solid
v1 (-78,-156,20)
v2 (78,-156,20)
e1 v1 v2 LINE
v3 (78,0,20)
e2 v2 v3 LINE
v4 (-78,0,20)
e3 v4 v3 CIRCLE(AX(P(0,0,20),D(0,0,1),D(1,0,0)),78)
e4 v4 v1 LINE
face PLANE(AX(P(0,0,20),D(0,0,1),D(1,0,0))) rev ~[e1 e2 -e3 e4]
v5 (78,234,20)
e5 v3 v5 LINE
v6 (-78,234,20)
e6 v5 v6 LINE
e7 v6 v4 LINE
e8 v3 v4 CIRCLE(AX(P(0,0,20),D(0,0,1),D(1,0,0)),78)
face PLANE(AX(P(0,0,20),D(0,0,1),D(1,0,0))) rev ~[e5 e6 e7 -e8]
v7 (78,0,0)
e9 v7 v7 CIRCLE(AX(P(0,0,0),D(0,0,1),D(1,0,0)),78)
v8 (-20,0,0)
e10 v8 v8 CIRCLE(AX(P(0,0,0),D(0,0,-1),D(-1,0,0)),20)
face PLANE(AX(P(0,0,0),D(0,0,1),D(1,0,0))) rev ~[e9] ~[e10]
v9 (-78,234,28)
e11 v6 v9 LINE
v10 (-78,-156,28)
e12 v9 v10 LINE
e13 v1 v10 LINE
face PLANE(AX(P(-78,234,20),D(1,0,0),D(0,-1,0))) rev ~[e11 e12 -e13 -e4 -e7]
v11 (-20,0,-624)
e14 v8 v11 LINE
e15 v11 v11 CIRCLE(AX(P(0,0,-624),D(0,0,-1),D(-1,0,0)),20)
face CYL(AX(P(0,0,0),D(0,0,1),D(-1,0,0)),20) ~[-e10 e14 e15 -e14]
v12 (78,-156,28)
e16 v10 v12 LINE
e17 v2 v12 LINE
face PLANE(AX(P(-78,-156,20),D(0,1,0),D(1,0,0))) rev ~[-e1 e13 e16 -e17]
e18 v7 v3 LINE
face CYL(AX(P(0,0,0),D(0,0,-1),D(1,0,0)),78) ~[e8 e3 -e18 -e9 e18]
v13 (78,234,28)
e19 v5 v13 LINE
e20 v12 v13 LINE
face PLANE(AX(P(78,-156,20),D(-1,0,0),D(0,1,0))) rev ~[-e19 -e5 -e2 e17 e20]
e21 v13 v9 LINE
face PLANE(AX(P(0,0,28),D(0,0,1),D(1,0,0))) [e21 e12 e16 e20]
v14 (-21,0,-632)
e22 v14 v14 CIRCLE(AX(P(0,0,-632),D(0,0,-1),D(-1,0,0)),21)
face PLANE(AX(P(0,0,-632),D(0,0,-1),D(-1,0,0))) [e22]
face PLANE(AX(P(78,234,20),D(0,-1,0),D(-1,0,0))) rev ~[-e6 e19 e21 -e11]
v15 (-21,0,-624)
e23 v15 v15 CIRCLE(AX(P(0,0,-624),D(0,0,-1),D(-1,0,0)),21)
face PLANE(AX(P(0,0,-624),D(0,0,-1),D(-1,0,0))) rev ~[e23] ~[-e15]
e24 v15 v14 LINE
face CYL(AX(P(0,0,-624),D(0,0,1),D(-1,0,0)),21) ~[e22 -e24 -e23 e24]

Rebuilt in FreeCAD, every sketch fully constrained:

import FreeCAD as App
import Part
import Sketcher

V = App.Vector
Q = App.Units.Quantity

doc = App.newDocument("Part")
params = doc.addObject("Spreadsheet::Sheet", "Params")
for row, (alias, value) in enumerate([
    ("sketch1_diameter", "156 mm"),
    ("pad1_length", "20 mm"),
    ("sketch2_diameter", "40 mm"),
    ("pad2_length", "624 mm"),
    ("sketch3_width", "156 mm"),
    ("sketch3_height", "390 mm"),
    ("pad3_length", "8 mm"),
    ("sketch4_diameter", "42 mm"),
    ("pad4_length", "8 mm"),
], start=1):
    params.set(f"A{row}", alias)
    params.set(f"B{row}", "=" + value)
    params.setAlias(f"B{row}", alias)

body = doc.addObject("PartDesign::Body", "Body")

sketch1 = body.newObject("Sketcher::SketchObject", "Sketch")
sketch1.AttachmentSupport = (doc.getObject("XY_Plane"), [""])
sketch1.MapMode = "FlatFace"
sketch1.addGeometry(Part.Circle(V(0, 0, 0), V(0, 0, 1), 78), False)
sketch1.addConstraint([
    Sketcher.Constraint("Coincident", 0, 3, -1, 1),
    Sketcher.Constraint("Diameter", 0, Q("156 mm")),
])
sketch1.setExpression("Constraints[1]", "Params.sketch1_diameter")
pad1 = body.newObject("PartDesign::Pad", "Pad")
pad1.Profile = sketch1
pad1.setExpression("Length", "Params.pad1_length")

sketch2 = body.newObject("Sketcher::SketchObject", "Sketch001")
sketch2.AttachmentSupport = (doc.getObject("XY_Plane"), [""])
sketch2.MapMode = "FlatFace"
sketch2.addGeometry(Part.Circle(V(0, 0, 0), V(0, 0, 1), 20), False)
sketch2.addConstraint([
    Sketcher.Constraint("Coincident", 0, 3, -1, 1),
    Sketcher.Constraint("Diameter", 0, Q("40 mm")),
])
sketch2.setExpression("Constraints[1]", "Params.sketch2_diameter")
pad2 = body.newObject("PartDesign::Pad", "Pad001")
pad2.Profile = sketch2
pad2.setExpression("Length", "Params.pad2_length")
pad2.Reversed = True

sketch3 = body.newObject("Sketcher::SketchObject", "Sketch002")
sketch3.AttachmentSupport = (doc.getObject("XY_Plane"), [""])
sketch3.MapMode = "FlatFace"
sketch3.AttachmentOffset = App.Placement(V(0, 0, 20), App.Rotation())
sketch3.addGeometry([
    Part.LineSegment(V(78, -156, 0), V(78, 234, 0)),
    Part.LineSegment(V(78, 234, 0), V(-78, 234, 0)),
    Part.LineSegment(V(-78, 234, 0), V(-78, -156, 0)),
    Part.LineSegment(V(-78, -156, 0), V(78, -156, 0)),
], False)
sketch3.addConstraint([
    Sketcher.Constraint("Coincident", 0, 2, 1, 1),
    Sketcher.Constraint("Coincident", 1, 2, 2, 1),
    Sketcher.Constraint("Coincident", 2, 2, 3, 1),
    Sketcher.Constraint("Coincident", 3, 2, 0, 1),
    Sketcher.Constraint("Vertical", 0),
    Sketcher.Constraint("Horizontal", 1),
    Sketcher.Constraint("Vertical", 2),
    Sketcher.Constraint("Horizontal", 3),
    Sketcher.Constraint("DistanceX", 1, 2, 1, 1, Q("156 mm")),
    Sketcher.Constraint("DistanceY", 0, 1, 0, 2, Q("390 mm")),
    Sketcher.Constraint("DistanceX", -1, 1, 0, 2, Q("78 mm")),
    Sketcher.Constraint("DistanceY", -1, 1, 0, 2, Q("234 mm")),
])
sketch3.setExpression("Constraints[8]", "Params.sketch3_width")
sketch3.setExpression("Constraints[9]", "Params.sketch3_height")
pad3 = body.newObject("PartDesign::Pad", "Pad002")
pad3.Profile = sketch3
pad3.setExpression("Length", "Params.pad3_length")

sketch4 = body.newObject("Sketcher::SketchObject", "Sketch003")
sketch4.AttachmentSupport = (doc.getObject("XY_Plane"), [""])
sketch4.MapMode = "FlatFace"
sketch4.AttachmentOffset = App.Placement(V(0, 0, -624), App.Rotation())
sketch4.addGeometry(Part.Circle(V(0, 0, 0), V(0, 0, 1), 21), False)
sketch4.addConstraint([
    Sketcher.Constraint("Coincident", 0, 3, -1, 1),
    Sketcher.Constraint("Diameter", 0, Q("42 mm")),
])
sketch4.setExpression("Constraints[1]", "Params.sketch4_diameter")
pad4 = body.newObject("PartDesign::Pad", "Pad003")
pad4.Profile = sketch4
pad4.setExpression("Length", "Params.pad4_length")
pad4.Reversed = True

doc.recompute()
